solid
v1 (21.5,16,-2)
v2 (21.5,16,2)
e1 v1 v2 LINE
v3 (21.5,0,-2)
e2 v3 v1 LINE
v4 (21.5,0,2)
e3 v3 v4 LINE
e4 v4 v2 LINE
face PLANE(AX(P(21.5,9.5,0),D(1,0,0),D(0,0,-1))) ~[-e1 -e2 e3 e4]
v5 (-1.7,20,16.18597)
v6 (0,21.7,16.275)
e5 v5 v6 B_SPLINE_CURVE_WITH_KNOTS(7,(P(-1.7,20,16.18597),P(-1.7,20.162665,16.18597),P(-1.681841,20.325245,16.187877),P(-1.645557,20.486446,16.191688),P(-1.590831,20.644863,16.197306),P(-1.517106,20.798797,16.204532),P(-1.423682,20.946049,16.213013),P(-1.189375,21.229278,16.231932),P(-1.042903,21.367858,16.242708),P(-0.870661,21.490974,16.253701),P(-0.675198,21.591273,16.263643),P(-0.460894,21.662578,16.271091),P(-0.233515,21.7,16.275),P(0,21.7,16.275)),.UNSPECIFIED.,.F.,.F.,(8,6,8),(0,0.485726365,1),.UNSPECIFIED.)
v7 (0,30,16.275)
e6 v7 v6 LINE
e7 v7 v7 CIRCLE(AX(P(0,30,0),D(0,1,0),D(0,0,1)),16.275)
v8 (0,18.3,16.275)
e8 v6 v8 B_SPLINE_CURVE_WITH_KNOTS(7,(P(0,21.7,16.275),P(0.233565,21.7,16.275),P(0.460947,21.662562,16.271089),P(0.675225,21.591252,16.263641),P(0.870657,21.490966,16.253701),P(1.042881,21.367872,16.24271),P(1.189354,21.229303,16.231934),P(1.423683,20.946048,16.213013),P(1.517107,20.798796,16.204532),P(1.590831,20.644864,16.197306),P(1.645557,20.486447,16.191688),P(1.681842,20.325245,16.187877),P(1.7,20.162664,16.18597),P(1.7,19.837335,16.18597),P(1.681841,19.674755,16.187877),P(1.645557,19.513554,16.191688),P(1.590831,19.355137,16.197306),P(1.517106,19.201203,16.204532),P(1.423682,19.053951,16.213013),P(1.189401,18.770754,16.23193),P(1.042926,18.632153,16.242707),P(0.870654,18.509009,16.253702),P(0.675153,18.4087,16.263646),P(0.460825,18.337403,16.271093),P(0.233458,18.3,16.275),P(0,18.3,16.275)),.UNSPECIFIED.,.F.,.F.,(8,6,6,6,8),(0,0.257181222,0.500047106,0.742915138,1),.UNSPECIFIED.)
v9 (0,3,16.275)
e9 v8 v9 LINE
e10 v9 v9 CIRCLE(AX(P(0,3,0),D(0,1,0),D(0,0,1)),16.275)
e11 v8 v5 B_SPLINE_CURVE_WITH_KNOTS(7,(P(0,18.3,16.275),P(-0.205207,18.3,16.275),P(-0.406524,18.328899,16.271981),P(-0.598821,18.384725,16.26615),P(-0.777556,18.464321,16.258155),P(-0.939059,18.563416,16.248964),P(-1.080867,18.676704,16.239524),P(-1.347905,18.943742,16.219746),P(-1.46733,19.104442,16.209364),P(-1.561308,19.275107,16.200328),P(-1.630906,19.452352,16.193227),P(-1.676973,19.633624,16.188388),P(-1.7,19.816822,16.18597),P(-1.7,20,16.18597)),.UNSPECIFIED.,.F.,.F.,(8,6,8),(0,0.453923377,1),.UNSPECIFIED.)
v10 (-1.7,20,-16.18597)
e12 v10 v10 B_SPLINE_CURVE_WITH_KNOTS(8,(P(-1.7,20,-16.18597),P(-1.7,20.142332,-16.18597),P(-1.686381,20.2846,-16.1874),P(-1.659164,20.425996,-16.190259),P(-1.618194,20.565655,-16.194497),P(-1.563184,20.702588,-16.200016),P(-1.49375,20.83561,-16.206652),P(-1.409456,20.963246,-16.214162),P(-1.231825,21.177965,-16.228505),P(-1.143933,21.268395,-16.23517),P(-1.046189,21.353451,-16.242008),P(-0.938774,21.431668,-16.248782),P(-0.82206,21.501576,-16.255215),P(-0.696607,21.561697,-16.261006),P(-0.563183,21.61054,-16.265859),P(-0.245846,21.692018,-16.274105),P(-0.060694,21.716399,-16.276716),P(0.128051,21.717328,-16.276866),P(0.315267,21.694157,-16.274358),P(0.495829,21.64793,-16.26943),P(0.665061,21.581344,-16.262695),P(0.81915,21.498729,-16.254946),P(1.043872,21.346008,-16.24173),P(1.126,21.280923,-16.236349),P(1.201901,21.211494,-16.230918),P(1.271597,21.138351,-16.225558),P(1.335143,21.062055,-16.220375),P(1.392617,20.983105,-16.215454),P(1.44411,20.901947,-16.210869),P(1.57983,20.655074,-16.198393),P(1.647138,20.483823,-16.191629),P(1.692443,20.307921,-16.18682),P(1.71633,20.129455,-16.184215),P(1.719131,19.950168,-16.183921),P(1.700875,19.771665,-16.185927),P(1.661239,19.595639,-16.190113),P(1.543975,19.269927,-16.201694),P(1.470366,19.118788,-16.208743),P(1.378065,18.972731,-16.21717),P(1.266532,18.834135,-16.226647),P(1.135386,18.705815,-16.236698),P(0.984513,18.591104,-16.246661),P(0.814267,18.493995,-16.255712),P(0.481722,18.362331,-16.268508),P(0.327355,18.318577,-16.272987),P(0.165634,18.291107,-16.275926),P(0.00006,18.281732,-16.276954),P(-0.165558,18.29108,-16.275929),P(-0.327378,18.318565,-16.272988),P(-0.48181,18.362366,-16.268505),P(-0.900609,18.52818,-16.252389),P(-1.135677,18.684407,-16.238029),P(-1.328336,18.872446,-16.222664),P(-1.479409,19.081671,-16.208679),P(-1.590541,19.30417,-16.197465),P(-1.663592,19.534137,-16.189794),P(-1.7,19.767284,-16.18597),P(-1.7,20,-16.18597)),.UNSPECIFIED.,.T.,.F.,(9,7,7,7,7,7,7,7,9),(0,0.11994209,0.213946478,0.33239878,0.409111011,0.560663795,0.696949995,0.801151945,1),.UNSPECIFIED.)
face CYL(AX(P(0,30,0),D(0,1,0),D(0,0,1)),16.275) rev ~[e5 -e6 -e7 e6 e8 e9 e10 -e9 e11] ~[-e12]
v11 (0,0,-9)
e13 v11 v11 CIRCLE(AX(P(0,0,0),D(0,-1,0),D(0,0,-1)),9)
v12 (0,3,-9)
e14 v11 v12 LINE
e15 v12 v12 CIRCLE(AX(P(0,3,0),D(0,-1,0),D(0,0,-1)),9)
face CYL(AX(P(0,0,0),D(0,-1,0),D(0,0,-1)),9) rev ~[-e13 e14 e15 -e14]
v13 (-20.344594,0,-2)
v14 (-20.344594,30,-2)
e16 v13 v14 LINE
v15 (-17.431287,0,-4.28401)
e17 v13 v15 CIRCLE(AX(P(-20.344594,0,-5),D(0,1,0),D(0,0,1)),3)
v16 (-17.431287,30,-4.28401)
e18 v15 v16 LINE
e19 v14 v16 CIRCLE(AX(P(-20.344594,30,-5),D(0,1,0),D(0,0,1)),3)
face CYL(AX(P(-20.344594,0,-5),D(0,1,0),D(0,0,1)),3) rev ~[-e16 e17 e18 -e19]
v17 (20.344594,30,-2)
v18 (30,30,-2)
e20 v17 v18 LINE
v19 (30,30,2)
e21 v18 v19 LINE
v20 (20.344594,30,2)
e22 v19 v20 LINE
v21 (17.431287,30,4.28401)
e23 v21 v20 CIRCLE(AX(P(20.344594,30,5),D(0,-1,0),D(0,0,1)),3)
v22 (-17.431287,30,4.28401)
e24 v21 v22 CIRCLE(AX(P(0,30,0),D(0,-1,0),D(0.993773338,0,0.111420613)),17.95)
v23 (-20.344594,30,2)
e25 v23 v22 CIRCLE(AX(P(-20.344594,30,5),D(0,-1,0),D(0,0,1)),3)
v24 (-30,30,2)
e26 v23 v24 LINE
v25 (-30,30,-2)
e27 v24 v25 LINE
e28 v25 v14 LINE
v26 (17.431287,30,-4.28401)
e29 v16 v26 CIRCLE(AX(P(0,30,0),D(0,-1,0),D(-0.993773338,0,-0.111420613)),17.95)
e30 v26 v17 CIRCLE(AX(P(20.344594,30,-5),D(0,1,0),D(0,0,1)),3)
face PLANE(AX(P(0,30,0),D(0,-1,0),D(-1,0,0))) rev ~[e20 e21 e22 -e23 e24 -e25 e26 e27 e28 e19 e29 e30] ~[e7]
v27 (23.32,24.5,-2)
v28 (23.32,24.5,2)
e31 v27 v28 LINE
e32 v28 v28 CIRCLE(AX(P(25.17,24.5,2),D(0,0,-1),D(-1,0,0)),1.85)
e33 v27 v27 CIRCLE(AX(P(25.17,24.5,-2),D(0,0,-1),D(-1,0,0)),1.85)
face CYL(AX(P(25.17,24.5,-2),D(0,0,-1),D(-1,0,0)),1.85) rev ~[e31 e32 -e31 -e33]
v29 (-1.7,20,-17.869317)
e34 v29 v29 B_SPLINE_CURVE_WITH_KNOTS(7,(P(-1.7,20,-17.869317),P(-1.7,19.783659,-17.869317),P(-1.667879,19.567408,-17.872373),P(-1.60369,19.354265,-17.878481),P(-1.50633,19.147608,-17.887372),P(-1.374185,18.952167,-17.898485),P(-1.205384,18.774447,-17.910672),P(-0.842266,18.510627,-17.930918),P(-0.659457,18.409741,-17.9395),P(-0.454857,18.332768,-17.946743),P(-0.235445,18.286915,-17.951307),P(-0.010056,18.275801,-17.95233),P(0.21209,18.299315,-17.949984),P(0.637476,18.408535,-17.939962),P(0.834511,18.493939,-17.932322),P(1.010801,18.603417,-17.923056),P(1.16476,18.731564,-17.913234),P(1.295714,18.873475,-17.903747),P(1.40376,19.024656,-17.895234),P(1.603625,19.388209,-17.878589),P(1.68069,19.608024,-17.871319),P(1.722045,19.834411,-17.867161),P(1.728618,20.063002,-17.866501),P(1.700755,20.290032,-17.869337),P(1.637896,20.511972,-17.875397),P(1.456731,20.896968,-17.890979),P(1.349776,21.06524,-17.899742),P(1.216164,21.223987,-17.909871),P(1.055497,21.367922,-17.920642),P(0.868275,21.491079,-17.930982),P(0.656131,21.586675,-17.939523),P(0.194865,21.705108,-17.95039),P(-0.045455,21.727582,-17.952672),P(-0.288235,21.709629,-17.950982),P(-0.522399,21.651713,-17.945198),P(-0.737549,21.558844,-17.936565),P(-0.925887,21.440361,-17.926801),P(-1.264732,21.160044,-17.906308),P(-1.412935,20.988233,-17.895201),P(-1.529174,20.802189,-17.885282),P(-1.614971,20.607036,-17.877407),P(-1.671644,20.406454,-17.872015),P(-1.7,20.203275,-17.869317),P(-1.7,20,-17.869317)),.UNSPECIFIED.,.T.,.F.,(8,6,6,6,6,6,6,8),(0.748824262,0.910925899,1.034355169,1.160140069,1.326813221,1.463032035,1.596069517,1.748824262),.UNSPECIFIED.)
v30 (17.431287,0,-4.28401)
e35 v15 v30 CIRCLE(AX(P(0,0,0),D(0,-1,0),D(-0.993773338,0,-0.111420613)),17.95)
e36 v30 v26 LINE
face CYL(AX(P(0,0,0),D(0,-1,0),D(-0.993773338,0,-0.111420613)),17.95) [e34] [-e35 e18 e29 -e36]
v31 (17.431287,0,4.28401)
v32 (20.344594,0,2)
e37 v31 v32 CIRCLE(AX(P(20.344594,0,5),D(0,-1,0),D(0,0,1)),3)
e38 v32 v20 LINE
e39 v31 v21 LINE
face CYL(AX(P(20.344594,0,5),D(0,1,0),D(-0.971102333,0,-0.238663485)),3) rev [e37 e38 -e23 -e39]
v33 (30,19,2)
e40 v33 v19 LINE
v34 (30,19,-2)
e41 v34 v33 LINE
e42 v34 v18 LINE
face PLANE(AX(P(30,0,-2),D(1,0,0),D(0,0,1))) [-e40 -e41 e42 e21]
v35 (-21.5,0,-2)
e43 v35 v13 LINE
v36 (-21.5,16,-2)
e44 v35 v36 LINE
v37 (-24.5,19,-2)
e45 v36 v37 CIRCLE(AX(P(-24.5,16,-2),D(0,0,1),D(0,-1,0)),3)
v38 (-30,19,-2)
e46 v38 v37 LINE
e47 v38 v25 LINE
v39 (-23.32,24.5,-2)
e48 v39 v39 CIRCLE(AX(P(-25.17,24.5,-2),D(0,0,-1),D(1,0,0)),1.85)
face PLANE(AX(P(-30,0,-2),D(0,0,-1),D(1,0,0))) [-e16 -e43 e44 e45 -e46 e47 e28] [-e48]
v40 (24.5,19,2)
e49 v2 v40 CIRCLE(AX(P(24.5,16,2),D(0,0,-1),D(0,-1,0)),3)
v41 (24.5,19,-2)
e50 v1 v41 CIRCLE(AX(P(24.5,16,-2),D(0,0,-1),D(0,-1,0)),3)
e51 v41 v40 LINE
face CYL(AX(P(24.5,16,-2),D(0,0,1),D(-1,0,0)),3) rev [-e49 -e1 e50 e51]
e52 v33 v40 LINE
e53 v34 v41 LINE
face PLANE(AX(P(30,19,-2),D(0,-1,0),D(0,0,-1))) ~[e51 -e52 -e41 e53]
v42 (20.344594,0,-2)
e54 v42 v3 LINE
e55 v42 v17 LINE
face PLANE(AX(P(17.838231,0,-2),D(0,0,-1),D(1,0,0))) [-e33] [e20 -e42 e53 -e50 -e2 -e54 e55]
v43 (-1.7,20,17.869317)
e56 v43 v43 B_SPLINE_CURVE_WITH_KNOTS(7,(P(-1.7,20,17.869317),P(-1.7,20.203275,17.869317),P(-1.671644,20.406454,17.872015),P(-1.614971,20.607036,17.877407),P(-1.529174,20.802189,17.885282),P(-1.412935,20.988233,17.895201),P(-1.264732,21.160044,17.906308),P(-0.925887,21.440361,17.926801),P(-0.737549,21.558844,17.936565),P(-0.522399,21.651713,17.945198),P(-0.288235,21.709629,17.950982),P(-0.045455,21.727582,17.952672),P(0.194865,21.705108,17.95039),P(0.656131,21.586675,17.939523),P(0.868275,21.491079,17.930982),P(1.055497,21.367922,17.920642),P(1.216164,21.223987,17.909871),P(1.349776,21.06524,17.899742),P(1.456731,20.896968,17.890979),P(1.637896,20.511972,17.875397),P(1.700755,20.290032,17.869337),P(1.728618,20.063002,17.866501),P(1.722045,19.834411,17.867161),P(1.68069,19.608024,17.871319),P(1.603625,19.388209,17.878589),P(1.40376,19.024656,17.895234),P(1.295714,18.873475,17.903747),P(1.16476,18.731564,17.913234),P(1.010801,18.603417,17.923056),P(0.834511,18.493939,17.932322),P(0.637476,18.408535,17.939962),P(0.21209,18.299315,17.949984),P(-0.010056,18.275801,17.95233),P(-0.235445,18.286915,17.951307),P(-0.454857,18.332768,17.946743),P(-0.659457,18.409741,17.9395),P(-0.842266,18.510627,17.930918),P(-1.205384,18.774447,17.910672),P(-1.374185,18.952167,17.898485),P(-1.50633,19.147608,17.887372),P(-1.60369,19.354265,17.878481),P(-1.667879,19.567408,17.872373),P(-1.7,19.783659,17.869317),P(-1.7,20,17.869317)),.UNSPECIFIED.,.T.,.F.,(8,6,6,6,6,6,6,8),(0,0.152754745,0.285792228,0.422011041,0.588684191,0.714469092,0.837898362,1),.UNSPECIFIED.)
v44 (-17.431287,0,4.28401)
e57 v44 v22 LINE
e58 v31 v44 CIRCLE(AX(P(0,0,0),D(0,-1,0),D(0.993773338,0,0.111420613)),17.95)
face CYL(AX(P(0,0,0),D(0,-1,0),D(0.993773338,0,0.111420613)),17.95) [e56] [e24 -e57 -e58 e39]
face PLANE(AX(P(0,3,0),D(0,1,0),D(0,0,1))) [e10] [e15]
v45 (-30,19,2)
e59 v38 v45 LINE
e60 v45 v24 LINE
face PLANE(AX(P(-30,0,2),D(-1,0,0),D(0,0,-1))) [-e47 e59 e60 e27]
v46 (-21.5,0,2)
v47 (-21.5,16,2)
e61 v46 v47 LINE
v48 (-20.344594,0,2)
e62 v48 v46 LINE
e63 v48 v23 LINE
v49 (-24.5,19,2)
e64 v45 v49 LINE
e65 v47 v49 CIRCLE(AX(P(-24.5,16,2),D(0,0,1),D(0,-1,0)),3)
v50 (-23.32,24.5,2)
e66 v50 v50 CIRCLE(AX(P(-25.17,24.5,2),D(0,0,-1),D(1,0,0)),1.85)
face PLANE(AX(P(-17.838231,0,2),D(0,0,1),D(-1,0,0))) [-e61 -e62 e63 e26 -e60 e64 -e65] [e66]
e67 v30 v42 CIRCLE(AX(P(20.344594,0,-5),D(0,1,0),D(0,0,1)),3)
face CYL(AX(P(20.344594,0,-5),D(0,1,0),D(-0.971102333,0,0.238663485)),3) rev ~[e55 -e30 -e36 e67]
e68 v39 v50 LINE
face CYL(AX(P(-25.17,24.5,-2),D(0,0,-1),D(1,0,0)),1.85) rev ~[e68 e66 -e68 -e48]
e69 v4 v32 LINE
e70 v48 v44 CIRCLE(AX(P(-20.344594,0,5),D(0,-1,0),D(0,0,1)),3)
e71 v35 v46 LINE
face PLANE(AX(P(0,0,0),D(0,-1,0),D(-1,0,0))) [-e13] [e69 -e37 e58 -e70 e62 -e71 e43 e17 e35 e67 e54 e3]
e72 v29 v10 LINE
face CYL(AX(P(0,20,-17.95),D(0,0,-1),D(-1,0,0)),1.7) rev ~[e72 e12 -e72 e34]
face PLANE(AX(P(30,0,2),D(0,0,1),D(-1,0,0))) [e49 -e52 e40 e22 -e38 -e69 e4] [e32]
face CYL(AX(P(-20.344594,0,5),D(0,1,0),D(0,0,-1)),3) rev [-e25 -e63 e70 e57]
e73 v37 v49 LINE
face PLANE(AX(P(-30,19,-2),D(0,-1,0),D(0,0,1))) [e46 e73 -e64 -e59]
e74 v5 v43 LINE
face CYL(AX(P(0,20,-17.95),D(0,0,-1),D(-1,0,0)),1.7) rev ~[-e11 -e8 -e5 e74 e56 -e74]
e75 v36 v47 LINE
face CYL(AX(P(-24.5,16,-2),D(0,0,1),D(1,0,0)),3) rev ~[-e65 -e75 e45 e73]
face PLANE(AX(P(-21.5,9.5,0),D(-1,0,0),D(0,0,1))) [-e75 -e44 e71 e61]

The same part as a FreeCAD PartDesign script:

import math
import FreeCAD as App
import Part
import Sketcher
from FreeCAD import Vector


def edges_at(feature, points):
    """Names of the edges that pass closest to the given points."""
    edges = feature.Shape.Edges
    near = lambda p: min(range(len(edges)), key=lambda i: edges[i].distToShape(Part.Vertex(*p))[0])
    return sorted({f"Edge{near(p) + 1}" for p in points})


def add_polygon(sketch, points):
    """Adds a closed chain of lines whose ends are joined by coincident constraints."""
    first, n = sketch.GeometryCount, len(points)
    for a, b in zip(points, points[1:] + points[:1]):
        sketch.addGeometry(Part.LineSegment(App.Vector(*a, 0), App.Vector(*b, 0)), False)
    for i in range(n):
        sketch.addConstraint(Sketcher.Constraint("Coincident", first + i, 2, first + (i + 1) % n, 1))

doc = App.newDocument("Part")
body = doc.addObject("PartDesign::Body", "Body")

# Sketch on XZ plane
sketch1 = body.newObject("Sketcher::SketchObject", "Sketch")
sketch1.AttachmentSupport = (doc.getObject("XZ_Plane"), [""])
sketch1.MapMode = "FlatFace"
sketch1.addGeometry([
    Part.LineSegment(Vector(-30, -2, 0), Vector(-30, 2, 0)),  # 0
    Part.LineSegment(Vector(-30, 2, 0), Vector(-17.8, 2, 0)),  # 1
    Part.ArcOfCircle(Part.Circle(Vector(0, 0, 0), Vector(0, 0, 1), 17.9), math.radians(6), math.radians(174)),  # 2
    Part.LineSegment(Vector(17.8, 2, 0), Vector(30, 2, 0)),  # 3
    Part.LineSegment(Vector(30, 2, 0), Vector(30, -2, 0)),  # 4
    Part.LineSegment(Vector(30, -2, 0), Vector(17.8, -2, 0)),  # 5
    Part.ArcOfCircle(Part.Circle(Vector(0, 0, 0), Vector(0, 0, 1), 17.9), math.radians(-174), math.radians(-6)),  # 6
    Part.LineSegment(Vector(-17.8, -2, 0), Vector(-30, -2, 0)),  # 7
], False)
sketch1.addConstraint([
    Sketcher.Constraint("Coincident", 0, 2, 1, 1),
    Sketcher.Constraint("Coincident", 1, 2, 2, 2),
    Sketcher.Constraint("Coincident", 2, 1, 3, 1),
    Sketcher.Constraint("Coincident", 3, 2, 4, 1),
    Sketcher.Constraint("Coincident", 4, 2, 5, 1),
    Sketcher.Constraint("Coincident", 5, 2, 6, 2),
    Sketcher.Constraint("Coincident", 6, 1, 7, 1),
    Sketcher.Constraint("Coincident", 7, 2, 0, 1),
    Sketcher.Constraint("Vertical", 0),
    Sketcher.Constraint("Horizontal", 1),
    Sketcher.Constraint("Horizontal", 3),
    Sketcher.Constraint("Vertical", 4),
    Sketcher.Constraint("Horizontal", 5),
    Sketcher.Constraint("Horizontal", 7),
    Sketcher.Constraint("Coincident", 2, 3, -1, 1),
    Sketcher.Constraint("Coincident", 6, 3, -1, 1),
    Sketcher.Constraint("Equal", 2, 6),
    Sketcher.Constraint("Symmetric", 0, 2, 4, 2, -1, 1),
    Sketcher.Constraint("Horizontal", 1, 2, 2, 1),
    Sketcher.Constraint("Horizontal", 5, 2, 6, 1),
    Sketcher.Constraint("DistanceY", 0, 1, 0, 2, 4.0),
    Sketcher.Constraint("Radius", 2, 17.95),
    Sketcher.Constraint("DistanceX", 0, 2, -1, 1, 30.0),
])
pad1 = body.newObject("PartDesign::Pad", "Pad")
pad1.Profile = sketch1
pad1.Length = 30
pad1.Reversed = True

# Sketch on YZ plane
sketch2 = body.newObject("Sketcher::SketchObject", "Sketch001")
sketch2.AttachmentSupport = (doc.getObject("YZ_Plane"), [""])
sketch2.MapMode = "FlatFace"
sketch2.AttachmentOffset = App.Placement(Vector(0, 0, -30), App.Rotation())
add_polygon(sketch2, [(19, -2), (0, -2), (0, 2), (19, 2)])  # lines 0-3
sketch2.addConstraint([
    Sketcher.Constraint("Horizontal", 0),
    Sketcher.Constraint("Vertical", 1),
    Sketcher.Constraint("Horizontal", 2),
    Sketcher.Constraint("Vertical", 3),
    Sketcher.Constraint("Symmetric", 0, 2, 1, 2, -1, 1),
    Sketcher.Constraint("DistanceX", 0, 2, 0, 1, 19.0),
    Sketcher.Constraint("DistanceY", 1, 1, 1, 2, 4.0),
])
pocket1 = body.newObject("PartDesign::Pocket", "Pocket")
pocket1.Profile = sketch2
pocket1.Length = 8.5
pocket1.Reversed = True
doc.recompute()

mirrored = body.newObject("PartDesign::Mirrored", "Mirrored")
mirrored.Originals = [pocket1]
mirrored.MirrorPlane = (doc.getObject("YZ_Plane"), [""])
body.Tip = mirrored

# Sketch on XZ plane
sketch3 = body.newObject("Sketcher::SketchObject", "Sketch002")
sketch3.AttachmentSupport = (doc.getObject("XZ_Plane"), [""])
sketch3.MapMode = "FlatFace"
sketch3.AttachmentOffset = App.Placement(Vector(0, 0, -30), App.Rotation())
sketch3.addGeometry(Part.Circle(Vector(0, 0, 0), Vector(0, 0, 1), 16), False)
sketch3.addConstraint([
    Sketcher.Constraint("Coincident", 0, 3, -1, 1),
    Sketcher.Constraint("Diameter", 0, 32.55),
])
pocket2 = body.newObject("PartDesign::Pocket", "Pocket001")
pocket2.Profile = sketch3
pocket2.Length = 27
pocket2.Reversed = True

# Sketch on XZ plane
sketch4 = body.newObject("Sketcher::SketchObject", "Sketch003")
sketch4.AttachmentSupport = (doc.getObject("XZ_Plane"), [""])
sketch4.MapMode = "FlatFace"
sketch4.addGeometry(Part.Circle(Vector(0, 0, 0), Vector(0, 0, 1), 9), False)
sketch4.addConstraint([
    Sketcher.Constraint("Coincident", 0, 3, -1, 1),
    Sketcher.Constraint("Diameter", 0, 18.0),
])
pocket3 = body.newObject("PartDesign::Pocket", "Pocket002")
pocket3.Profile = sketch4
pocket3.Length = 4
doc.recompute()

fillet = body.newObject("PartDesign::Fillet", "Fillet")
fillet.Base = (pocket3, edges_at(pocket3, [
    (-17.838, 15, 2),
    (-17.838, 15, -2),
    (17.838, 15, -2),
    (17.838, 15, 2),
]))
fillet.Radius = 3
doc.recompute()

fillet2 = body.newObject("PartDesign::Fillet", "Fillet001")
fillet2.Base = (fillet, edges_at(fillet, [(-21.5, 19, 0), (21.5, 19, 0)]))
fillet2.Radius = 3

# Sketch on XY plane
sketch5 = body.newObject("Sketcher::SketchObject", "Sketch004")
sketch5.AttachmentSupport = (doc.getObject("XY_Plane"), [""])
sketch5.MapMode = "FlatFace"
sketch5.AttachmentOffset = App.Placement(Vector(0, 0, -2), App.Rotation())
sketch5.addGeometry([
    Part.Circle(Vector(25.2, 24.5, 0), Vector(0, 0, 1), 1.9),
    Part.Circle(Vector(-25.2, 24.5, 0), Vector(0, 0, 1), 1.9),
], False)
sketch5.addConstraint([
    Sketcher.Constraint("Equal", 0, 1),
    Sketcher.Constraint("Symmetric", 0, 3, 1, 3, -2),
    Sketcher.Constraint("Diameter", 0, 3.7),
    Sketcher.Constraint("DistanceY", -1, 1, 0, 3, 24.5),
    Sketcher.Constraint("DistanceX", -1, 1, 0, 3, 25.17),
])
pocket4 = body.newObject("PartDesign::Pocket", "Pocket003")
pocket4.Profile = sketch5
pocket4.Length = 4
pocket4.Reversed = True

# Sketch on XY plane
sketch6 = body.newObject("Sketcher::SketchObject", "Sketch005")
sketch6.AttachmentSupport = (doc.getObject("XY_Plane"), [""])
sketch6.MapMode = "FlatFace"
sketch6.AttachmentOffset = App.Placement(Vector(0, 0, -17.95), App.Rotation())
sketch6.addGeometry(Part.Circle(Vector(0, 20, 0), Vector(0, 0, 1), 1.7), False)
sketch6.addConstraint([
    Sketcher.Constraint("PointOnObject", 0, 3, -2),
    Sketcher.Constraint("Diameter", 0, 3.4),
    Sketcher.Constraint("DistanceY", -1, 1, 0, 3, 20.0),
])
pocket5 = body.newObject("PartDesign::Pocket", "Pocket004")
pocket5.Profile = sketch6
pocket5.Length = 37
pocket5.Reversed = True

doc.recompute()
